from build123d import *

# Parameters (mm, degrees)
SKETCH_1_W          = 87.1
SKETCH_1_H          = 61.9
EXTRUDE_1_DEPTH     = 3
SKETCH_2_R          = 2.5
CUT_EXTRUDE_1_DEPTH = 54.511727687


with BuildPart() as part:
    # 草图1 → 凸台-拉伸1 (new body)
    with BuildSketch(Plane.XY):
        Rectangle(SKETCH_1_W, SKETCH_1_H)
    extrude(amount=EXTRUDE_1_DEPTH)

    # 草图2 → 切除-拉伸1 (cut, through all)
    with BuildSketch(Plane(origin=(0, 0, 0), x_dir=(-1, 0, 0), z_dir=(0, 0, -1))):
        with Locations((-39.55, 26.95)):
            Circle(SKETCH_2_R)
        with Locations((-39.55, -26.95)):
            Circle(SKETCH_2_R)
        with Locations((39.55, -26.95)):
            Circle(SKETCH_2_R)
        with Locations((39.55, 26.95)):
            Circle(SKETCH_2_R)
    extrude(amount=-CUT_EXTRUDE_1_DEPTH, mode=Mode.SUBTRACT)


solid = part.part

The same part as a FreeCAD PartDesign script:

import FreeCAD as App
import Part
import Sketcher
Q = App.Units.Quantity

doc = App.newDocument("Part")
params = doc.addObject("Spreadsheet::Sheet", "Params")
for row, (alias, value) in enumerate([
    ("sketch1_width", "87.1 mm"),
    ("sketch1_height", "61.9 mm"),
    ("pad1_length", "3 mm"),
    ("sketch2_diameter", "5 mm"),
], start=1):
    params.set(f"A{row}", alias)
    params.set(f"B{row}", "=" + value)
    params.setAlias(f"B{row}", alias)

body = doc.addObject("PartDesign::Body", "Body")

# Sketch on XY plane
sketch1 = body.newObject("Sketcher::SketchObject", "Sketch")
sketch1.AttachmentSupport = (doc.getObject("XY_Plane"), [""])
sketch1.MapMode = "FlatFace"
sketch1.addGeometry(Part.LineSegment(App.Vector(-43.55, 30.95, 0), App.Vector(-43.55, -30.95, 0)), False)
sketch1.addGeometry(Part.LineSegment(App.Vector(-43.55, -30.95, 0), App.Vector(43.55, -30.95, 0)), False)
sketch1.addGeometry(Part.LineSegment(App.Vector(43.55, -30.95, 0), App.Vector(43.55, 30.95, 0)), False)
sketch1.addGeometry(Part.LineSegment(App.Vector(43.55, 30.95, 0), App.Vector(-43.55, 30.95, 0)), False)
sketch1.addConstraint(Sketcher.Constraint("Coincident", 0, 2, 1, 1))
sketch1.addConstraint(Sketcher.Constraint("Coincident", 1, 2, 2, 1))
sketch1.addConstraint(Sketcher.Constraint("Coincident", 2, 2, 3, 1))
sketch1.addConstraint(Sketcher.Constraint("Coincident", 3, 2, 0, 1))
sketch1.addConstraint(Sketcher.Constraint("Vertical", 0))
sketch1.addConstraint(Sketcher.Constraint("Horizontal", 1))
sketch1.addConstraint(Sketcher.Constraint("Vertical", 2))
sketch1.addConstraint(Sketcher.Constraint("Horizontal", 3))
sketch1.addConstraint(Sketcher.Constraint("Symmetric", 0, 2, 2, 2, -1, 1))
sketch1.addConstraint(Sketcher.Constraint("DistanceX", 1, 1, 1, 2, Q("87.1 mm")))
sketch1.addConstraint(Sketcher.Constraint("DistanceY", 0, 2, 0, 1, Q("61.9 mm")))
sketch1.setExpression("Constraints[9]", "Params.sketch1_width")
sketch1.setExpression("Constraints[10]", "Params.sketch1_height")
pad1 = body.newObject("PartDesign::Pad", "Pad")
pad1.Profile = sketch1
pad1.setExpression("Length", "Params.pad1_length")

# Sketch on XY plane
sketch2 = body.newObject("Sketcher::SketchObject", "Sketch001")
sketch2.AttachmentSupport = (doc.getObject("XY_Plane"), [""])
sketch2.MapMode = "FlatFace"
sketch2.addGeometry(Part.Circle(App.Vector(39.55, 26.95, 0), App.Vector(0, 0, 1), 2.5), False)
sketch2.addGeometry(Part.Circle(App.Vector(39.55, -26.95, 0), App.Vector(0, 0, 1), 2.5), False)
sketch2.addGeometry(Part.Circle(App.Vector(-39.55, -26.95, 0), App.Vector(0, 0, 1), 2.5), False)
sketch2.addGeometry(Part.Circle(App.Vector(-39.55, 26.95, 0), App.Vector(0, 0, 1), 2.5), False)
sketch2.addConstraint(Sketcher.Constraint("Equal", 0, 1))
sketch2.addConstraint(Sketcher.Constraint("Equal", 1, 2))
sketch2.addConstraint(Sketcher.Constraint("Equal", 2, 3))
sketch2.addConstraint(Sketcher.Constraint("Symmetric", 0, 3, 2, 3, -1, 1))
sketch2.addConstraint(Sketcher.Constraint("Symmetric", 1, 3, 3, 3, -1, 1))
sketch2.addConstraint(Sketcher.Constraint("Symmetric", 1, 3, 2, 3, -2))
sketch2.addConstraint(Sketcher.Constraint("Diameter", 0, Q("5 mm")))
sketch2.addConstraint(Sketcher.Constraint("DistanceY", 1, 3, 0, 3, Q("53.9 mm")))
sketch2.addConstraint(Sketcher.Constraint("DistanceX", 2, 3, 1, 3, Q("79.1 mm")))
sketch2.setExpression("Constraints[6]", "Params.sketch2_diameter")
pocket1 = body.newObject("PartDesign::Pocket", "Pocket")
pocket1.Profile = sketch2
pocket1.Type = "ThroughAll"
pocket1.Reversed = True

doc.recompute()
